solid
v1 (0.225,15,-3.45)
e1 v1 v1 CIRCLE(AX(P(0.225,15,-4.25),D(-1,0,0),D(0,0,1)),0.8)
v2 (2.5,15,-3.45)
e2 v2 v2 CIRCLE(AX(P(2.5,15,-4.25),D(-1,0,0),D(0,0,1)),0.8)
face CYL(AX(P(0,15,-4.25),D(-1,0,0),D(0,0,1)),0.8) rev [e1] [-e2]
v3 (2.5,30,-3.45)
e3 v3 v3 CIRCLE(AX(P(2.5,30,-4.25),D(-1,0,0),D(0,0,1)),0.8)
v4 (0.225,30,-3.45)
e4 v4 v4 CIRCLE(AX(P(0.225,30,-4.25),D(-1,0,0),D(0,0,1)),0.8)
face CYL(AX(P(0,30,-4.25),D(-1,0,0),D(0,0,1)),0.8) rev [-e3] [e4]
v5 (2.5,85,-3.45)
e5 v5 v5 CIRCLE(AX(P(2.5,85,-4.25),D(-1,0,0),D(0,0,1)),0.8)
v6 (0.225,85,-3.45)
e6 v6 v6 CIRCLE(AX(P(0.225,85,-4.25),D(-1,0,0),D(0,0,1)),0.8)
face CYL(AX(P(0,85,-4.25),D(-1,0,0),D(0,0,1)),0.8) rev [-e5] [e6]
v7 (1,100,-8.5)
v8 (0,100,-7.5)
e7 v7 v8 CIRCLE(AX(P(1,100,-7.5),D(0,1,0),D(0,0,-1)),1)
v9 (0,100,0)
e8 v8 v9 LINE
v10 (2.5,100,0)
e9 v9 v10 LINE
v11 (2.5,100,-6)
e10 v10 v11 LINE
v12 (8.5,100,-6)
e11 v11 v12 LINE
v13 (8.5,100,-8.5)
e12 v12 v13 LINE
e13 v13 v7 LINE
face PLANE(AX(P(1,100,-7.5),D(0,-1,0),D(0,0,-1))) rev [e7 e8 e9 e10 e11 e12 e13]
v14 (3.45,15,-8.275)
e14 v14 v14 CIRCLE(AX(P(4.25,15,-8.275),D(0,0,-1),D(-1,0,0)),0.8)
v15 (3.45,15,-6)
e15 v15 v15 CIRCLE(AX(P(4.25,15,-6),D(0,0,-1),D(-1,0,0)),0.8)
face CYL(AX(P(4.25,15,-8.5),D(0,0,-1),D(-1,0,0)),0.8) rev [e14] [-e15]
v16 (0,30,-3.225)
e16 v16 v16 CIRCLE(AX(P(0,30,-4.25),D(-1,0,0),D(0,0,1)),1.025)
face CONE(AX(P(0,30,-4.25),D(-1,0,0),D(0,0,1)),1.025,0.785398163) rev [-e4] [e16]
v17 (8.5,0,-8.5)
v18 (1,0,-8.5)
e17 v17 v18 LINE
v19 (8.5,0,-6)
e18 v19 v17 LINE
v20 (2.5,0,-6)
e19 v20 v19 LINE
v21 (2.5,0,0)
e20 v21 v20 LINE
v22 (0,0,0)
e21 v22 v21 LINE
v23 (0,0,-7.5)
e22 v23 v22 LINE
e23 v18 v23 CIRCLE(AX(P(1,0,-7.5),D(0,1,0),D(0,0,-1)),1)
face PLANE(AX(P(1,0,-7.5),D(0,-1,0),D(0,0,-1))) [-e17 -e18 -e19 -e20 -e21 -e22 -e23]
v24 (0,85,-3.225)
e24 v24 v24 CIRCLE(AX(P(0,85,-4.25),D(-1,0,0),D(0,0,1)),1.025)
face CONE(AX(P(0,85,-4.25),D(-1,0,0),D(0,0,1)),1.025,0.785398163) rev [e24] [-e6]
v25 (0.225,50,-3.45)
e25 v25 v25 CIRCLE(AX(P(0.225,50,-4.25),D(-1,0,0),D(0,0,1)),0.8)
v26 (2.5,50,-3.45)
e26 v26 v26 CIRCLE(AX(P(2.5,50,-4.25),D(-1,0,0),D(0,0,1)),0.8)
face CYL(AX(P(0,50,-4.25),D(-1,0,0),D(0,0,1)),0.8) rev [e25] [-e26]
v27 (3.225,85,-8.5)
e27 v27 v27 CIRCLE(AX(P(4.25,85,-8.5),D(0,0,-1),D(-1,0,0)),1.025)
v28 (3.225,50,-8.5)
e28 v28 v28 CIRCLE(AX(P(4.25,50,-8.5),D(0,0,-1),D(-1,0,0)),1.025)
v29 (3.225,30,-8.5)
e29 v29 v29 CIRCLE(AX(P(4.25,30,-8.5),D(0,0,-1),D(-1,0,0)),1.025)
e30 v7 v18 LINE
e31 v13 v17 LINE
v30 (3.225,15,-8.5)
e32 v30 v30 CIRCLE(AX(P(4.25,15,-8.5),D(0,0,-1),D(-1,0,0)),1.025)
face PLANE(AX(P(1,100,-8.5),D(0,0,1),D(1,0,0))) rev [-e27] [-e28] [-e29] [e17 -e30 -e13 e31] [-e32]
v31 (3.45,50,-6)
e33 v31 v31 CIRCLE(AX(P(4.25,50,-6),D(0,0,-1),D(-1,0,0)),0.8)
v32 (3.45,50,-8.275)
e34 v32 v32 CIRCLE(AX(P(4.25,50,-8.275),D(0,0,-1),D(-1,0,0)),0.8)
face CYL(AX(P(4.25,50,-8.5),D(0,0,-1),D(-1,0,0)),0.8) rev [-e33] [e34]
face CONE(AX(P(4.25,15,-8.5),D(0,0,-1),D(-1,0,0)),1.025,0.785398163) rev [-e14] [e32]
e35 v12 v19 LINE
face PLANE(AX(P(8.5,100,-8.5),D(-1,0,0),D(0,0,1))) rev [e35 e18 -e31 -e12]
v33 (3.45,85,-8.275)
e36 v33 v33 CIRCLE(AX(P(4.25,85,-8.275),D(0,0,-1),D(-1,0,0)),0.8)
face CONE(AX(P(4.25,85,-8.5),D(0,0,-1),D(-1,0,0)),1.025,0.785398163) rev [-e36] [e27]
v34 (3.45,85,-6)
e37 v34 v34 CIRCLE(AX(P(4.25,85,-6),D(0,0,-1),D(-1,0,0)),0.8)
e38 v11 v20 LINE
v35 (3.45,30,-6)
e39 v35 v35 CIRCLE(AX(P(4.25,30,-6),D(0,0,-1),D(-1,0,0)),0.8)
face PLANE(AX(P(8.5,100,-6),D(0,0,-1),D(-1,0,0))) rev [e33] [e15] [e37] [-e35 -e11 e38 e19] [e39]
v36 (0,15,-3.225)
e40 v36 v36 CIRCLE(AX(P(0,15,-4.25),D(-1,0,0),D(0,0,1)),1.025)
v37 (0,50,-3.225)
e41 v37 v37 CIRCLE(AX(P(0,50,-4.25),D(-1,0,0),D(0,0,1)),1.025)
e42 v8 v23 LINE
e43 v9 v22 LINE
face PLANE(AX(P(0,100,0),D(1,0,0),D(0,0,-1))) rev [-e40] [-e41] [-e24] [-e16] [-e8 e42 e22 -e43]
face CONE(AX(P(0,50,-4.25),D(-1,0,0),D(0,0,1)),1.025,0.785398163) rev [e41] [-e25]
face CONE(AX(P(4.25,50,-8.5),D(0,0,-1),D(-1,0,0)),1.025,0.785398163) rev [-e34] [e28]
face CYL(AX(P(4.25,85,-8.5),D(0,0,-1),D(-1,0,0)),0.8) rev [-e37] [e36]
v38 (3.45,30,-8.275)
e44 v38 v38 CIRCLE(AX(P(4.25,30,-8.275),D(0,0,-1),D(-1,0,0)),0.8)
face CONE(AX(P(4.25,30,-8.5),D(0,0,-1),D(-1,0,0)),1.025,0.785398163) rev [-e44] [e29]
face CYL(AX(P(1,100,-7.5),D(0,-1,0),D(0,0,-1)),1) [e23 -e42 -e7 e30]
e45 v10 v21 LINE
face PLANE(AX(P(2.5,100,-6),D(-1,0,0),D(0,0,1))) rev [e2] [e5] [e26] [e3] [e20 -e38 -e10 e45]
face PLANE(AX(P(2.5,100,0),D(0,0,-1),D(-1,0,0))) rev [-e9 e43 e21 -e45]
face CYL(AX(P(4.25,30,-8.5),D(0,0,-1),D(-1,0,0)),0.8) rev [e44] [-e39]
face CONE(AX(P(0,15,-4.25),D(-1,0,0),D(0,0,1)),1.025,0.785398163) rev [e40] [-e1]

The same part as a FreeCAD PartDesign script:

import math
import FreeCAD as App
import Part
import Sketcher

V = App.Vector
Q = App.Units.Quantity

doc = App.newDocument("Part")
params = doc.addObject("Spreadsheet::Sheet", "Params")
for row, (alias, value) in enumerate([
    ("sketch1_radius", "1 mm"),
    ("sketch1_width", "6 mm"),
    ("sketch1_width2", "2.5 mm"),
    ("pad1_length", "100 mm"),
    ("sketch2_diameter", "1.6 mm"),
    ("hole_diameter", "1.6 mm"),
    ("hole_csink_diameter", "2.05 mm"),
    ("linearpattern_pitch", "35 mm"),
    ("sketch3_diameter", "1.6 mm"),
    ("hole2_diameter", "1.6 mm"),
    ("hole2_csink_diameter", "2.05 mm"),
    ("linearpattern2_pitch", "35 mm"),
    ("sketch4_diameter", "1.6 mm"),
    ("hole3_diameter", "1.6 mm"),
    ("hole3_csink_diameter", "2.05 mm"),
    ("sketch5_diameter", "1.6 mm"),
    ("hole4_diameter", "1.6 mm"),
    ("hole4_csink_diameter", "2.05 mm"),
], start=1):
    params.set(f"A{row}", alias)
    params.set(f"B{row}", "=" + value)
    params.setAlias(f"B{row}", alias)

body = doc.addObject("PartDesign::Body", "Body")

# Sketch on XZ plane
sketch1 = body.newObject("Sketcher::SketchObject", "Sketch")
sketch1.AttachmentSupport = (doc.getObject("XZ_Plane"), [""])
sketch1.MapMode = "FlatFace"
sketch1.addGeometry(Part.LineSegment(V(0, -7.5, 0), V(0, 0, 0)), False)
sketch1.addGeometry(Part.LineSegment(V(0, 0, 0), V(2.5, 0, 0)), False)
sketch1.addGeometry(Part.LineSegment(V(2.5, 0, 0), V(2.5, -6, 0)), False)
sketch1.addGeometry(Part.LineSegment(V(2.5, -6, 0), V(8.5, -6, 0)), False)
sketch1.addGeometry(Part.LineSegment(V(8.5, -6, 0), V(8.5, -8.5, 0)), False)
sketch1.addGeometry(Part.LineSegment(V(8.5, -8.5, 0), V(1, -8.5, 0)), False)
sketch1.addGeometry(Part.ArcOfCircle(Part.Circle(V(1, -7.5, 0), V(0, 0, 1), 1), math.radians(-180), math.radians(-90)), False)
sketch1.addConstraint(Sketcher.Constraint("Coincident", 0, 2, 1, 1))
sketch1.addConstraint(Sketcher.Constraint("Coincident", 1, 2, 2, 1))
sketch1.addConstraint(Sketcher.Constraint("Coincident", 2, 2, 3, 1))
sketch1.addConstraint(Sketcher.Constraint("Coincident", 3, 2, 4, 1))
sketch1.addConstraint(Sketcher.Constraint("Coincident", 4, 2, 5, 1))
sketch1.addConstraint(Sketcher.Constraint("Tangent", 5, 2, 6, 2))
sketch1.addConstraint(Sketcher.Constraint("Tangent", 6, 1, 0, 1))
sketch1.addConstraint(Sketcher.Constraint("Vertical", 0))
sketch1.addConstraint(Sketcher.Constraint("Horizontal", 1))
sketch1.addConstraint(Sketcher.Constraint("Vertical", 2))
sketch1.addConstraint(Sketcher.Constraint("Horizontal", 3))
sketch1.addConstraint(Sketcher.Constraint("Vertical", 4))
sketch1.addConstraint(Sketcher.Constraint("Horizontal", 5))
sketch1.addConstraint(Sketcher.Constraint("Coincident", 0, 2, -1, 1))
sketch1.addConstraint(Sketcher.Constraint("Equal", 5, 0))
sketch1.addConstraint(Sketcher.Constraint("Equal", 3, 2))
sketch1.addConstraint(Sketcher.Constraint("Radius", 6, Q("1 mm")))
sketch1.addConstraint(Sketcher.Constraint("DistanceX", 3, 1, 3, 2, Q("6 mm")))
sketch1.addConstraint(Sketcher.Constraint("DistanceX", 1, 1, 1, 2, Q("2.5 mm")))
sketch1.setExpression("Constraints[16]", "Params.sketch1_radius")
sketch1.setExpression("Constraints[17]", "Params.sketch1_width")
sketch1.setExpression("Constraints[18]", "Params.sketch1_width2")
pad1 = body.newObject("PartDesign::Pad", "Pad")
pad1.Profile = sketch1
pad1.setExpression("Length", "Params.pad1_length")
pad1.Reversed = True

# Sketch on XY plane
sketch2 = body.newObject("Sketcher::SketchObject", "Sketch001")
sketch2.AttachmentSupport = (doc.getObject("XY_Plane"), [""])
sketch2.MapMode = "FlatFace"
sketch2.AttachmentOffset = App.Placement(V(0, 0, -8.5), App.Rotation())
sketch2.addGeometry(Part.Circle(V(4.2, 15, 0), V(0, 0, 1), 0.8), False)
sketch2.addConstraint(Sketcher.Constraint("Diameter", 0, Q("1.6 mm")))
sketch2.addConstraint(Sketcher.Constraint("DistanceY", -1, 1, 0, 3, Q("15 mm")))
sketch2.addConstraint(Sketcher.Constraint("DistanceX", -1, 1, 0, 3, Q("4.25 mm")))
sketch2.setExpression("Constraints[0]", "Params.sketch2_diameter")
doc.recompute()
hole = body.newObject("PartDesign::Hole", "Hole")
hole.Profile = sketch2
hole.ThreadType = "None"
hole.setExpression("Diameter", "Params.hole_diameter")
hole.DepthType = "ThroughAll"
hole.HoleCutType = "Countersink"
hole.setExpression("HoleCutDiameter", "Params.hole_csink_diameter")
hole.HoleCutCountersinkAngle = 90
hole.Reversed = True
doc.recompute()

linearpattern = body.newObject("PartDesign::LinearPattern", "LinearPattern")
linearpattern.Originals = [hole]
linearpattern.Direction = (doc.getObject("Y_Axis"), [""])
linearpattern.Mode = "offset"
linearpattern.setExpression("Offset", "Params.linearpattern_pitch")
linearpattern.Occurrences = 3
body.Tip = linearpattern

# Sketch on YZ plane
sketch3 = body.newObject("Sketcher::SketchObject", "Sketch002")
sketch3.AttachmentSupport = (doc.getObject("YZ_Plane"), [""])
sketch3.MapMode = "FlatFace"
sketch3.addGeometry(Part.Circle(V(15, -4.2, 0), V(0, 0, 1), 0.8), False)
sketch3.addConstraint(Sketcher.Constraint("Diameter", 0, Q("1.6 mm")))
sketch3.addConstraint(Sketcher.Constraint("DistanceX", -1, 1, 0, 3, Q("15 mm")))
sketch3.addConstraint(Sketcher.Constraint("DistanceY", 0, 3, -1, 1, Q("4.25 mm")))
sketch3.setExpression("Constraints[0]", "Params.sketch3_diameter")
doc.recompute()
hole2 = body.newObject("PartDesign::Hole", "Hole001")
hole2.Profile = sketch3
hole2.ThreadType = "None"
hole2.setExpression("Diameter", "Params.hole2_diameter")
hole2.DepthType = "ThroughAll"
hole2.HoleCutType = "Countersink"
hole2.setExpression("HoleCutDiameter", "Params.hole2_csink_diameter")
hole2.HoleCutCountersinkAngle = 90
hole2.Reversed = True
doc.recompute()

linearpattern2 = body.newObject("PartDesign::LinearPattern", "LinearPattern001")
linearpattern2.Originals = [hole2]
linearpattern2.Direction = (doc.getObject("Y_Axis"), [""])
linearpattern2.Mode = "offset"
linearpattern2.setExpression("Offset", "Params.linearpattern2_pitch")
linearpattern2.Occurrences = 3
body.Tip = linearpattern2

# Sketch on XY plane
sketch4 = body.newObject("Sketcher::SketchObject", "Sketch003")
sketch4.AttachmentSupport = (doc.getObject("XY_Plane"), [""])
sketch4.MapMode = "FlatFace"
sketch4.AttachmentOffset = App.Placement(V(0, 0, -8.5), App.Rotation())
sketch4.addGeometry(Part.Circle(V(4.2, 30, 0), V(0, 0, 1), 0.8), False)
sketch4.addConstraint(Sketcher.Constraint("Diameter", 0, Q("1.6 mm")))
sketch4.addConstraint(Sketcher.Constraint("DistanceY", -1, 1, 0, 3, Q("30 mm")))
sketch4.addConstraint(Sketcher.Constraint("DistanceX", -1, 1, 0, 3, Q("4.25 mm")))
sketch4.setExpression("Constraints[0]", "Params.sketch4_diameter")
doc.recompute()
hole3 = body.newObject("PartDesign::Hole", "Hole002")
hole3.Profile = sketch4
hole3.ThreadType = "None"
hole3.setExpression("Diameter", "Params.hole3_diameter")
hole3.DepthType = "ThroughAll"
hole3.HoleCutType = "Countersink"
hole3.setExpression("HoleCutDiameter", "Params.hole3_csink_diameter")
hole3.HoleCutCountersinkAngle = 90
hole3.Reversed = True

# Sketch on YZ plane
sketch5 = body.newObject("Sketcher::SketchObject", "Sketch004")
sketch5.AttachmentSupport = (doc.getObject("YZ_Plane"), [""])
sketch5.MapMode = "FlatFace"
sketch5.addGeometry(Part.Circle(V(30, -4.2, 0), V(0, 0, 1), 0.8), False)
sketch5.addConstraint(Sketcher.Constraint("Diameter", 0, Q("1.6 mm")))
sketch5.addConstraint(Sketcher.Constraint("DistanceX", -1, 1, 0, 3, Q("30 mm")))
sketch5.addConstraint(Sketcher.Constraint("DistanceY", 0, 3, -1, 1, Q("4.25 mm")))
sketch5.setExpression("Constraints[0]", "Params.sketch5_diameter")
doc.recompute()
hole4 = body.newObject("PartDesign::Hole", "Hole003")
hole4.Profile = sketch5
hole4.ThreadType = "None"
hole4.setExpression("Diameter", "Params.hole4_diameter")
hole4.DepthType = "ThroughAll"
hole4.HoleCutType = "Countersink"
hole4.setExpression("HoleCutDiameter", "Params.hole4_csink_diameter")
hole4.HoleCutCountersinkAngle = 90
hole4.Reversed = True

doc.recompute()
